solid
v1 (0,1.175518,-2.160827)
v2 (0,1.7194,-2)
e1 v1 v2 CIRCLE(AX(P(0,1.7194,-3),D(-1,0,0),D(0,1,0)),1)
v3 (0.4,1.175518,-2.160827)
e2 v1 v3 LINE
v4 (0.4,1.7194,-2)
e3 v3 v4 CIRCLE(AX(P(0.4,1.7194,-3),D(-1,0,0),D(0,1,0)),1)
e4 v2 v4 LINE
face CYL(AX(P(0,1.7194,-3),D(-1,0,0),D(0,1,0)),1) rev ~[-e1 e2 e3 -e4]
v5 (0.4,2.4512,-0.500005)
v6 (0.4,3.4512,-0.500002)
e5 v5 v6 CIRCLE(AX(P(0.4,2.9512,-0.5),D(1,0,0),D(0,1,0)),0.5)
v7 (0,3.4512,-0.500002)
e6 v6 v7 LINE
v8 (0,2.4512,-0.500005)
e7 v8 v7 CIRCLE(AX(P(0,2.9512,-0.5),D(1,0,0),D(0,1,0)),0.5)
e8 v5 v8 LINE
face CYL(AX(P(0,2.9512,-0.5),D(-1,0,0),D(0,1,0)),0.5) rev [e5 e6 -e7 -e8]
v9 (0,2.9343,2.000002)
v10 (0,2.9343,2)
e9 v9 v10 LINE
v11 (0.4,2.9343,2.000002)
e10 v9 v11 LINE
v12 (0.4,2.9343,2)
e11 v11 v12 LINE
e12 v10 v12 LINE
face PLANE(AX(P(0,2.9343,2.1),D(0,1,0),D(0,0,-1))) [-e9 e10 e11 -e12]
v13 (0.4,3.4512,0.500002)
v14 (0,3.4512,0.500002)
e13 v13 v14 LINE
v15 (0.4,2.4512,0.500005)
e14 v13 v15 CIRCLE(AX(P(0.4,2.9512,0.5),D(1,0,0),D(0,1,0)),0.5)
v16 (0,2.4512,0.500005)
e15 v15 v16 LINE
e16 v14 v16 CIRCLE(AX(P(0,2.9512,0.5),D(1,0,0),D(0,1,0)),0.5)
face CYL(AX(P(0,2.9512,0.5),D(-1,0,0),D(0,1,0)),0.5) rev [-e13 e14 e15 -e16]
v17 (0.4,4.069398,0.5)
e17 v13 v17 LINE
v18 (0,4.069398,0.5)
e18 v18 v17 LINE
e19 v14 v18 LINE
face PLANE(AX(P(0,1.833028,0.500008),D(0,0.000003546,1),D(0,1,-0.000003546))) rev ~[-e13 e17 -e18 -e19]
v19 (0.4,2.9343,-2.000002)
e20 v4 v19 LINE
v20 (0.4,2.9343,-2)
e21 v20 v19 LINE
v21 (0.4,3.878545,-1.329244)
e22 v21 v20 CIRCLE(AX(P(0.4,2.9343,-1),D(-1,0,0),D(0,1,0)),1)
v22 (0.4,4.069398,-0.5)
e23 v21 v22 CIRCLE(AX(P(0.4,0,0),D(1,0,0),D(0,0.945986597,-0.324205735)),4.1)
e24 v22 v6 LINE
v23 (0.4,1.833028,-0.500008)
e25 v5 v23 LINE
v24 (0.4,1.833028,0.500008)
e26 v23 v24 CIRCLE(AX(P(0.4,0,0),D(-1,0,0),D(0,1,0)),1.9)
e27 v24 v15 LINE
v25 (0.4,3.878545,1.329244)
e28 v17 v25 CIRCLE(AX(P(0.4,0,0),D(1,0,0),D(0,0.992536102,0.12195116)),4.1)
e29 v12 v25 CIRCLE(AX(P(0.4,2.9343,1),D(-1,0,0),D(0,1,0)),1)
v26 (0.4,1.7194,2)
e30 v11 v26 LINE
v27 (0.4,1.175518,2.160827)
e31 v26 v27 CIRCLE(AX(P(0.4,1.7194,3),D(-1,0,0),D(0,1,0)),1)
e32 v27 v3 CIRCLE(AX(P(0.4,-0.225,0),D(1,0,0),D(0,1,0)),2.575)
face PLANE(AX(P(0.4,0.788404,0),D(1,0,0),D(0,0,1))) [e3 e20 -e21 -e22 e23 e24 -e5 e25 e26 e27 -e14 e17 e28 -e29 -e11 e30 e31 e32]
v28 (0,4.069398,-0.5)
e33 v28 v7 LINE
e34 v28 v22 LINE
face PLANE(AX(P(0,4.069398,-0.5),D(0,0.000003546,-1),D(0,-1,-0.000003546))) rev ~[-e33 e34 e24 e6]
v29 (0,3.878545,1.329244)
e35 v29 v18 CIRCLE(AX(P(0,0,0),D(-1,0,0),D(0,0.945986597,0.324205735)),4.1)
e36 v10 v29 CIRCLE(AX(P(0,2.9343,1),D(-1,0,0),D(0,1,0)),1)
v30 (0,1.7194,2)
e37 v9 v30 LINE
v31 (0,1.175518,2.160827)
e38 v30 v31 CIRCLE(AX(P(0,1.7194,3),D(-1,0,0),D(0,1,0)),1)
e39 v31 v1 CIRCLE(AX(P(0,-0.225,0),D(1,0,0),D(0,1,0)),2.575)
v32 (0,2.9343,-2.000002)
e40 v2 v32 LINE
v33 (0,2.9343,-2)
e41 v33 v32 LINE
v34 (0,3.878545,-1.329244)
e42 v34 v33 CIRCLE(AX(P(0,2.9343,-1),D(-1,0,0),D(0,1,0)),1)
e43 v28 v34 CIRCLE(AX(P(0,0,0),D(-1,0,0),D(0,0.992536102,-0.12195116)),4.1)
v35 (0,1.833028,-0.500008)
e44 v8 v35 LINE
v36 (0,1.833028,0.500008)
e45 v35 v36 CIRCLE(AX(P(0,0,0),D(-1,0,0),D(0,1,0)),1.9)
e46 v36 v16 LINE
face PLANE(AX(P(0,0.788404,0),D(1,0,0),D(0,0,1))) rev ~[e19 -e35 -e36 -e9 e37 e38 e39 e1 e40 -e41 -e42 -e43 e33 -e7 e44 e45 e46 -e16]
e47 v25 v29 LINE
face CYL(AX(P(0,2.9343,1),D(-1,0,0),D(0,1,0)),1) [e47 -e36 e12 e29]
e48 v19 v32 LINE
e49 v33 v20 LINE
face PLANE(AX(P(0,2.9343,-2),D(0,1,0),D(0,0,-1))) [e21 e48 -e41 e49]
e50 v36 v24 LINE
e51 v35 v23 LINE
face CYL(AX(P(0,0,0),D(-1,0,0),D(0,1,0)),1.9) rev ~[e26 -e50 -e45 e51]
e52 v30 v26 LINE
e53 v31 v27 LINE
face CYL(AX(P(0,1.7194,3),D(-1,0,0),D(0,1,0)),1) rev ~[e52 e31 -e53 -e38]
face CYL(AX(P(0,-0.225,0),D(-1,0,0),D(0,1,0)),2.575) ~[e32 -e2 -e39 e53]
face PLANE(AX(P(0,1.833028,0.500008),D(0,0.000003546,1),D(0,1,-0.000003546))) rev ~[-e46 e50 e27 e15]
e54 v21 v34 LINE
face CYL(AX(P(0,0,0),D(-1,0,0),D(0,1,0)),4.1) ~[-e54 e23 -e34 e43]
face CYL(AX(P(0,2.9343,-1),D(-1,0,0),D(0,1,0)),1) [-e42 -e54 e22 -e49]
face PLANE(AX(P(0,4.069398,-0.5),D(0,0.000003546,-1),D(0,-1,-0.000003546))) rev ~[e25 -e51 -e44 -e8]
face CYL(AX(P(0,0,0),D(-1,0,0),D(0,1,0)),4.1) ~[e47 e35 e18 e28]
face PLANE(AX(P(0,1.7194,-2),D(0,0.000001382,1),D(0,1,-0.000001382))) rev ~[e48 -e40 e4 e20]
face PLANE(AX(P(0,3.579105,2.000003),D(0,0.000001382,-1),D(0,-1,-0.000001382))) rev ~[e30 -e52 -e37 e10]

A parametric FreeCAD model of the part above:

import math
import FreeCAD as App
import Part
import Sketcher

doc = App.newDocument("Part")
params = doc.addObject("Spreadsheet::Sheet", "Params")
for row, (alias, value) in enumerate([
    ("sketch1_radius", "1 mm"),
    ("sketch1_radius2", "4.1 mm"),
    ("sketch1_radius3", "1.9 mm"),
    ("pad1_length", "0.4 mm"),
    ("sketch2_radius", "1 mm"),
    ("sketch2_radius2", "1 mm"),
    ("sketch2_height", "1 mm"),
    ("sketch2_radius3", "5.31 mm"),
    ("sketch2_height2", "0.1 mm"),
    ("pocket1_length", "0.4 mm"),
    ("sketch3_radius", "0.5 mm"),
    ("sketch3_height", "1 mm"),
    ("pocket2_length", "0.4 mm"),
], start=1):
    params.set(f"A{row}", alias)
    params.set(f"B{row}", "=" + value)
    params.setAlias(f"B{row}", alias)

body = doc.addObject("PartDesign::Body", "Body")

# Sketch on YZ plane
sketch1 = doc.addObject("Sketcher::SketchObject", "Sketch")
body.addObject(sketch1)
sketch1.AttachmentSupport = (doc.YZ_Plane, [""])
sketch1.MapMode = "FlatFace"
sketch1.addGeometry([
    Part.ArcOfCircle(Part.Circle(App.Vector(1.7194, 3, 0), App.Vector(0, 0, 1), 1), math.radians(-122.947969), math.radians(-90)),  # 0
    Part.ArcOfCircle(Part.Circle(App.Vector(-0.225, 0, 0), App.Vector(0, 0, 1), 2.574967), math.radians(57.051131), math.radians(302.948869)),  # 1
    Part.ArcOfCircle(Part.Circle(App.Vector(1.7194, -3, 0), App.Vector(0, 0, 1), 1.000042), math.radians(90), math.radians(122.947969)),  # 2
    Part.LineSegment(App.Vector(1.7194, -2, 0), App.Vector(3.5791, -2, 0)),  # 3
    Part.ArcOfCircle(Part.Circle(App.Vector(0, 0, 0), App.Vector(0, 0, 1), 4.100002), math.radians(-29.196446), math.radians(-7.004723)),  # 4
    Part.LineSegment(App.Vector(4.0694, -0.5, 0), App.Vector(1.833, -0.5, 0)),  # 5
    Part.ArcOfCircle(Part.Circle(App.Vector(0, 0, 0), App.Vector(0, 0, 1), 1.899971), math.radians(15.257764), math.radians(344.742236)),  # 6
    Part.LineSegment(App.Vector(1.833, 0.5, 0), App.Vector(4.0694, 0.5, 0)),  # 7
    Part.ArcOfCircle(Part.Circle(App.Vector(0, 0, 0), App.Vector(0, 0, 1), 4.099995), math.radians(7.004723), math.radians(29.196446)),  # 8
    Part.LineSegment(App.Vector(3.5791, 2, 0), App.Vector(1.7194, 2, 0)),  # 9
], False)
sketch1.addConstraint([
    Sketcher.Constraint("Tangent", 0, 1, 1, 1),
    Sketcher.Constraint("Tangent", 1, 2, 2, 2),
    Sketcher.Constraint("Tangent", 2, 1, 3, 1),
    Sketcher.Constraint("Coincident", 3, 2, 4, 1),
    Sketcher.Constraint("Coincident", 4, 2, 5, 1),
    Sketcher.Constraint("Coincident", 5, 2, 6, 2),
    Sketcher.Constraint("Coincident", 6, 1, 7, 1),
    Sketcher.Constraint("Coincident", 7, 2, 8, 1),
    Sketcher.Constraint("Coincident", 8, 2, 9, 1),
    Sketcher.Constraint("Tangent", 9, 2, 0, 2),
    Sketcher.Constraint("Horizontal", 3),
    Sketcher.Constraint("Horizontal", 5),
    Sketcher.Constraint("Horizontal", 7),
    Sketcher.Constraint("Horizontal", 9),
    Sketcher.Constraint("Coincident", 4, 3, -1, 1),
    Sketcher.Constraint("Coincident", 6, 3, -1, 1),
    Sketcher.Constraint("Coincident", 8, 3, -1, 1),
    Sketcher.Constraint("Equal", 0, 2),
    Sketcher.Constraint("Equal", 4, 8),
    Sketcher.Constraint("Symmetric", 0, 3, 2, 3, -1),
    Sketcher.Constraint("Vertical", 5, 2, 6, 1),
    Sketcher.Constraint("Radius", 0, 1.0),
    Sketcher.Constraint("Radius", 4, 4.1),
    Sketcher.Constraint("Radius", 6, 1.9),
    Sketcher.Constraint("DistanceY", -1, 1, 0, 3, 3.0),
    Sketcher.Constraint("Radius", 1, 2.575),
    Sketcher.Constraint("DistanceY", 5, 2, 6, 1, 1.0),
    Sketcher.Constraint("DistanceX", 2, 1, 4, 2, 2.35),
])
sketch1.setExpression("Constraints[21]", "Params.sketch1_radius")
sketch1.setExpression("Constraints[22]", "Params.sketch1_radius2")
sketch1.setExpression("Constraints[23]", "Params.sketch1_radius3")
pad1 = doc.addObject("PartDesign::Pad", "Pad")
body.addObject(pad1)
pad1.Profile = sketch1
pad1.setExpression("Length", "Params.pad1_length")

# Sketch on YZ plane
sketch2 = doc.addObject("Sketcher::SketchObject", "Sketch001")
body.addObject(sketch2)
sketch2.AttachmentSupport = (doc.YZ_Plane, [""])
sketch2.MapMode = "FlatFace"
sketch2.addGeometry([
    Part.ArcOfCircle(Part.Circle(App.Vector(0, 0, 0), App.Vector(0, 0, 1), 5.31), math.radians(-23.295926), math.radians(23.295926)),  # 0
    Part.LineSegment(App.Vector(4.8771, 2.1, 0), App.Vector(2.9343, 2.1, 0)),  # 1
    Part.LineSegment(App.Vector(2.9343, 2.1, 0), App.Vector(2.9343, 2, 0)),  # 2
    Part.ArcOfCircle(Part.Circle(App.Vector(2.9343, 1, 0), App.Vector(0, 0, 1), 1), math.radians(18.820889), math.radians(90)),  # 3
    Part.ArcOfCircle(Part.Circle(App.Vector(-0.001515, -0.000431, 0), App.Vector(0, 0, 1), 4.101559), math.radians(7.008113), math.radians(18.818285)),  # 4
    Part.LineSegment(App.Vector(4.0694, 0.5, 0), App.Vector(4.0694, -0.5, 0)),  # 5
    Part.ArcOfCircle(Part.Circle(App.Vector(0.00155, -0.000272, 0), App.Vector(0, 0, 1), 4.09843), math.radians(-18.822809), math.radians(-7.003589)),  # 6
    Part.ArcOfCircle(Part.Circle(App.Vector(2.9343, -1, 0), App.Vector(0, 0, 1), 0.999967), math.radians(-90), math.radians(-18.820889)),  # 7
    Part.LineSegment(App.Vector(2.9343, -2, 0), App.Vector(2.9343, -2.1, 0)),  # 8
    Part.LineSegment(App.Vector(2.9343, -2.1, 0), App.Vector(4.8771, -2.1, 0)),  # 9
], False)
sketch2.addConstraint([
    Sketcher.Constraint("Coincident", 0, 2, 1, 1),
    Sketcher.Constraint("Coincident", 1, 2, 2, 1),
    Sketcher.Constraint("Coincident", 2, 2, 3, 2),
    Sketcher.Constraint("Coincident", 3, 1, 4, 2),
    Sketcher.Constraint("Coincident", 4, 1, 5, 1),
    Sketcher.Constraint("Coincident", 5, 2, 6, 2),
    Sketcher.Constraint("Coincident", 6, 1, 7, 2),
    Sketcher.Constraint("Coincident", 7, 1, 8, 1),
    Sketcher.Constraint("Coincident", 8, 2, 9, 1),
    Sketcher.Constraint("Coincident", 9, 2, 0, 1),
    Sketcher.Constraint("Horizontal", 1),
    Sketcher.Constraint("Vertical", 2),
    Sketcher.Constraint("Vertical", 5),
    Sketcher.Constraint("Vertical", 8),
    Sketcher.Constraint("Horizontal", 9),
    Sketcher.Constraint("Coincident", 0, 3, -1, 1),
    Sketcher.Constraint("Radius", 3, 1.0),
    Sketcher.Constraint("Radius", 7, 1.0),
    Sketcher.Constraint("DistanceY", 5, 2, 5, 1, 1.0),
    Sketcher.Constraint("Radius", 0, 5.31),
    Sketcher.Constraint("DistanceY", 2, 2, 2, 1, 0.1),
    Sketcher.Constraint("DistanceY", 8, 2, 8, 1, 0.1),
    Sketcher.Constraint("DistanceY", -1, 1, 3, 3, 1.0),
    Sketcher.Constraint("DistanceY", 7, 3, -1, 1, 1.0),
    Sketcher.Constraint("DistanceY", -1, 1, 4, 1, 0.5),
    Sketcher.Constraint("Radius", 4, 4.1016),
    Sketcher.Constraint("Radius", 6, 4.0984),
    Sketcher.Constraint("DistanceX", 1, 2, 1, 1, 1.9428),
    Sketcher.Constraint("DistanceX", 9, 1, 9, 2, 1.9428),
    Sketcher.Constraint("DistanceX", 4, 3, 6, 3, 0.003),
    Sketcher.Constraint("DistanceX", 3, 3, 4, 1, 1.135),
    Sketcher.Constraint("DistanceX", 2, 2, 4, 1, 1.135),
    Sketcher.Constraint("DistanceX", -1, 1, 3, 1, 3.8808),
    Sketcher.Constraint("DistanceX", -1, 1, 6, 1, 3.8808),
])
sketch2.setExpression("Constraints[16]", "Params.sketch2_radius")
sketch2.setExpression("Constraints[17]", "Params.sketch2_radius2")
sketch2.setExpression("Constraints[18]", "Params.sketch2_height")
sketch2.setExpression("Constraints[19]", "Params.sketch2_radius3")
sketch2.setExpression("Constraints[20]", "Params.sketch2_height2")
pocket1 = doc.addObject("PartDesign::Pocket", "Pocket")
body.addObject(pocket1)
pocket1.Profile = sketch2
pocket1.setExpression("Length", "Params.pocket1_length")
pocket1.Reversed = True

# Sketch on YZ plane
sketch3 = doc.addObject("Sketcher::SketchObject", "Sketch002")
body.addObject(sketch3)
sketch3.AttachmentSupport = (doc.YZ_Plane, [""])
sketch3.MapMode = "FlatFace"
sketch3.addGeometry([
    Part.LineSegment(App.Vector(3.4512, -0.5, 0), App.Vector(3.4512, 0.5, 0)),
    Part.ArcOfCircle(Part.Circle(App.Vector(2.9512, 0.5, 0), App.Vector(0, 0, 1), 0.5), math.radians(0), math.radians(180)),
    Part.LineSegment(App.Vector(2.4512, 0.5, 0), App.Vector(2.4512, -0.5, 0)),
    Part.ArcOfCircle(Part.Circle(App.Vector(2.9512, -0.5, 0), App.Vector(0, 0, 1), 0.5), math.radians(180), math.radians(360)),
], False)
sketch3.addConstraint([
    Sketcher.Constraint("Tangent", 0, 2, 1, 1),
    Sketcher.Constraint("Tangent", 1, 2, 2, 1),
    Sketcher.Constraint("Tangent", 2, 2, 3, 1),
    Sketcher.Constraint("Tangent", 3, 2, 0, 1),
    Sketcher.Constraint("Vertical", 0),
    Sketcher.Constraint("Vertical", 2),
    Sketcher.Constraint("Radius", 1, 0.5),
    Sketcher.Constraint("DistanceY", 0, 1, 0, 2, 1.0),
    Sketcher.Constraint("DistanceY", -1, 1, 1, 3, 0.5),
    Sketcher.Constraint("DistanceX", -1, 1, 1, 3, 2.9512),
])
sketch3.setExpression("Constraints[6]", "Params.sketch3_radius")
sketch3.setExpression("Constraints[7]", "Params.sketch3_height")
pocket2 = doc.addObject("PartDesign::Pocket", "Pocket001")
body.addObject(pocket2)
pocket2.Profile = sketch3
pocket2.setExpression("Length", "Params.pocket2_length")
pocket2.Reversed = True

doc.recompute()
